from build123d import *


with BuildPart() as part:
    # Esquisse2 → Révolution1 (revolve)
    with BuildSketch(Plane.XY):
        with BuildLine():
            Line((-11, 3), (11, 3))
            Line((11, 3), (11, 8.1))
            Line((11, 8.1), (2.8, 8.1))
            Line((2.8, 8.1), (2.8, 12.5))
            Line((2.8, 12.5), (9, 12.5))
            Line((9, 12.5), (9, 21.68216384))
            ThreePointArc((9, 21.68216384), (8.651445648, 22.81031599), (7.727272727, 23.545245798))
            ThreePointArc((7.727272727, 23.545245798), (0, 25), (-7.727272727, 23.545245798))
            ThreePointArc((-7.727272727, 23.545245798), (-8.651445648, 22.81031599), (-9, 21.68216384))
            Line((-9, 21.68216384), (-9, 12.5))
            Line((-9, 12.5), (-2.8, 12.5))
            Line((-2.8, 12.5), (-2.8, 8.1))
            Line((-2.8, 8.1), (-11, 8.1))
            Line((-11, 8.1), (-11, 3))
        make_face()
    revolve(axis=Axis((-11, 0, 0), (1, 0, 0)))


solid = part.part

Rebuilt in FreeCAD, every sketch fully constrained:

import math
import FreeCAD as App
import Part
import Sketcher

V = App.Vector
Q = App.Units.Quantity

doc = App.newDocument("Part")
params = doc.addObject("Spreadsheet::Sheet", "Params")
for row, (alias, value) in enumerate([
    ("sketch1_radius", "2 mm"),
    ("sketch1_width", "22 mm"),
    ("sketch1_radius2", "21.25 mm"),
    ("sketch1_width2", "8.2 mm"),
    ("sketch1_width3", "6.2 mm"),
    ("revolution_angle", "360 deg"),
], start=1):
    params.set(f"A{row}", alias)
    params.set(f"B{row}", "=" + value)
    params.setAlias(f"B{row}", alias)

body = doc.addObject("PartDesign::Body", "Body")

# Sketch on XY plane
sketch1 = body.newObject("Sketcher::SketchObject", "Sketch")
sketch1.AttachmentSupport = (doc.getObject("XY_Plane"), [""])
sketch1.MapMode = "FlatFace"
sketch1.addGeometry([
    Part.LineSegment(V(-11, 3, 0), V(11, 3, 0)),  # 0
    Part.LineSegment(V(11, 3, 0), V(11, 8.1, 0)),  # 1
    Part.LineSegment(V(11, 8.1, 0), V(2.8, 8.1, 0)),  # 2
    Part.LineSegment(V(2.8, 8.1, 0), V(2.8, 12.5, 0)),  # 3
    Part.LineSegment(V(2.8, 12.5, 0), V(9, 12.5, 0)),  # 4
    Part.LineSegment(V(9, 12.5, 0), V(9, 21.7, 0)),  # 5
    Part.ArcOfCircle(Part.Circle(V(7, 21.7, 0), V(0, 0, 1), 2), math.radians(0), math.radians(69)),  # 6
    Part.ArcOfCircle(Part.Circle(V(0, 3.8, 0), V(0, 0, 1), 21.2), math.radians(69), math.radians(111)),  # 7
    Part.ArcOfCircle(Part.Circle(V(-7, 21.7, 0), V(0, 0, 1), 2), math.radians(111), math.radians(180)),  # 8
    Part.LineSegment(V(-9, 21.7, 0), V(-9, 12.5, 0)),  # 9
    Part.LineSegment(V(-9, 12.5, 0), V(-2.8, 12.5, 0)),  # 10
    Part.LineSegment(V(-2.8, 12.5, 0), V(-2.8, 8.1, 0)),  # 11
    Part.LineSegment(V(-2.8, 8.1, 0), V(-11, 8.1, 0)),  # 12
    Part.LineSegment(V(-11, 8.1, 0), V(-11, 3, 0)),  # 13
], False)
sketch1.addConstraint([
    Sketcher.Constraint("Coincident", 0, 2, 1, 1),
    Sketcher.Constraint("Coincident", 1, 2, 2, 1),
    Sketcher.Constraint("Coincident", 2, 2, 3, 1),
    Sketcher.Constraint("Coincident", 3, 2, 4, 1),
    Sketcher.Constraint("Coincident", 4, 2, 5, 1),
    Sketcher.Constraint("Tangent", 5, 2, 6, 1),
    Sketcher.Constraint("Tangent", 6, 2, 7, 1),
    Sketcher.Constraint("Tangent", 7, 2, 8, 1),
    Sketcher.Constraint("Tangent", 8, 2, 9, 1),
    Sketcher.Constraint("Coincident", 9, 2, 10, 1),
    Sketcher.Constraint("Coincident", 10, 2, 11, 1),
    Sketcher.Constraint("Coincident", 11, 2, 12, 1),
    Sketcher.Constraint("Coincident", 12, 2, 13, 1),
    Sketcher.Constraint("Coincident", 13, 2, 0, 1),
    Sketcher.Constraint("Horizontal", 0),
    Sketcher.Constraint("Vertical", 1),
    Sketcher.Constraint("Horizontal", 2),
    Sketcher.Constraint("Vertical", 3),
    Sketcher.Constraint("Horizontal", 4),
    Sketcher.Constraint("Vertical", 5),
    Sketcher.Constraint("Vertical", 9),
    Sketcher.Constraint("Horizontal", 10),
    Sketcher.Constraint("Vertical", 11),
    Sketcher.Constraint("Horizontal", 12),
    Sketcher.Constraint("Vertical", 13),
    Sketcher.Constraint("Equal", 6, 8),
    Sketcher.Constraint("Symmetric", 6, 3, 8, 3, -2),
    Sketcher.Constraint("Symmetric", 3, 2, 10, 2, -2),
    Sketcher.Constraint("Symmetric", 1, 2, 12, 2, -2),
    Sketcher.Constraint("Radius", 6, Q("2 mm")),
    Sketcher.Constraint("DistanceX", 0, 1, 0, 2, Q("22 mm")),
    Sketcher.Constraint("Radius", 7, Q("21.25 mm")),
    Sketcher.Constraint("DistanceX", 2, 2, 2, 1, Q("8.2 mm")),
    Sketcher.Constraint("DistanceX", 4, 1, 4, 2, Q("6.2 mm")),
    Sketcher.Constraint("DistanceY", 1, 1, 1, 2, Q("5.1 mm")),
    Sketcher.Constraint("DistanceY", 3, 1, 3, 2, Q("4.4 mm")),
    Sketcher.Constraint("DistanceY", -1, 1, 0, 2, Q("3 mm")),
    Sketcher.Constraint("DistanceY", -1, 1, 7, 3, Q("3.75 mm")),
])
sketch1.setExpression("Constraints[29]", "Params.sketch1_radius")
sketch1.setExpression("Constraints[30]", "Params.sketch1_width")
sketch1.setExpression("Constraints[31]", "Params.sketch1_radius2")
sketch1.setExpression("Constraints[32]", "Params.sketch1_width2")
sketch1.setExpression("Constraints[33]", "Params.sketch1_width3")
revolution = body.newObject("PartDesign::Revolution", "Revolution")
revolution.Profile = sketch1
revolution.ReferenceAxis = (sketch1, ["H_Axis"])
revolution.setExpression("Angle", "Params.revolution_angle")

doc.recompute()
